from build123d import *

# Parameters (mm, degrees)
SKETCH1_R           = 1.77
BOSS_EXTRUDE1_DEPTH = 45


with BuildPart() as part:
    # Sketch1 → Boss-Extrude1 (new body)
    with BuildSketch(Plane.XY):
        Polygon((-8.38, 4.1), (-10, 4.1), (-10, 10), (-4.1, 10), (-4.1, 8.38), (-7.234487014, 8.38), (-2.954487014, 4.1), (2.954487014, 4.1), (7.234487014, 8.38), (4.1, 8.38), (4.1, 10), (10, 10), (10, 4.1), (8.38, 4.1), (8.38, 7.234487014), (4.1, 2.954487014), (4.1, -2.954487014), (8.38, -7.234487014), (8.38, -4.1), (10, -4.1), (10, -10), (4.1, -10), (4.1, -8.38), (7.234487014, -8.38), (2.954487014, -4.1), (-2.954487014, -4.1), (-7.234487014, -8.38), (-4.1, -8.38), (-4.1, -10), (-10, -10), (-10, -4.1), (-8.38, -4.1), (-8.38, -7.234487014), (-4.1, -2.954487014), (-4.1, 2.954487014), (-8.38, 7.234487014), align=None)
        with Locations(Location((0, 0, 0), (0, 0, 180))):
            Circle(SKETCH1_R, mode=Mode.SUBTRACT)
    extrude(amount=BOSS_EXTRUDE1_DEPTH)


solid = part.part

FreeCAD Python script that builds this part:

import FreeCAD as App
import Part
import Sketcher


def add_polygon(sketch, points):
    """Adds a closed chain of lines whose ends are joined by coincident constraints."""
    first, n = sketch.GeometryCount, len(points)
    for a, b in zip(points, points[1:] + points[:1]):
        sketch.addGeometry(Part.LineSegment(App.Vector(*a, 0), App.Vector(*b, 0)), False)
    for i in range(n):
        sketch.addConstraint(Sketcher.Constraint("Coincident", first + i, 2, first + (i + 1) % n, 1))

doc = App.newDocument("Part")
body = doc.addObject("PartDesign::Body", "Body")

# Sketch on XY plane
sketch1 = doc.addObject("Sketcher::SketchObject", "Sketch")
body.addObject(sketch1)
sketch1.AttachmentSupport = (doc.XY_Plane, [""])
sketch1.MapMode = "FlatFace"
add_polygon(sketch1, [(-10, 4.1), (-8.4, 4.1), (-8.4, 7.2), (-4.1, 3), (-4.1, -3), (-8.4, -7.2), (-8.4, -4.1), (-10, -4.1), (-10, -10), (-4.1, -10), (-4.1, -8.4), (-7.2, -8.4), (-3, -4.1), (3, -4.1), (7.2, -8.4), (4.1, -8.4), (4.1, -10), (10, -10), (10, -4.1), (8.4, -4.1), (8.4, -7.2), (4.1, -3), (4.1, 3), (8.4, 7.2), (8.4, 4.1), (10, 4.1), (10, 10), (4.1, 10), (4.1, 8.4), (7.2, 8.4), (3, 4.1), (-3, 4.1), (-7.2, 8.4), (-4.1, 8.4), (-4.1, 10), (-10, 10)])  # lines 0-35
sketch1.addGeometry(Part.Circle(App.Vector(0, 0, 0), App.Vector(0, 0, 1), 1.8), False)  # 36
sketch1.addConstraint([
    Sketcher.Constraint("Horizontal", 0),
    Sketcher.Constraint("Vertical", 1),
    Sketcher.Constraint("Vertical", 3),
    Sketcher.Constraint("Vertical", 5),
    Sketcher.Constraint("Horizontal", 6),
    Sketcher.Constraint("Vertical", 7),
    Sketcher.Constraint("Horizontal", 8),
    Sketcher.Constraint("Vertical", 9),
    Sketcher.Constraint("Horizontal", 10),
    Sketcher.Constraint("Horizontal", 12),
    Sketcher.Constraint("Horizontal", 14),
    Sketcher.Constraint("Vertical", 15),
    Sketcher.Constraint("Horizontal", 16),
    Sketcher.Constraint("Vertical", 17),
    Sketcher.Constraint("Horizontal", 18),
    Sketcher.Constraint("Vertical", 19),
    Sketcher.Constraint("Vertical", 21),
    Sketcher.Constraint("Vertical", 23),
    Sketcher.Constraint("Horizontal", 24),
    Sketcher.Constraint("Vertical", 25),
    Sketcher.Constraint("Horizontal", 26),
    Sketcher.Constraint("Vertical", 27),
    Sketcher.Constraint("Horizontal", 28),
    Sketcher.Constraint("Horizontal", 30),
    Sketcher.Constraint("Horizontal", 32),
    Sketcher.Constraint("Vertical", 33),
    Sketcher.Constraint("Horizontal", 34),
    Sketcher.Constraint("Vertical", 35),
    Sketcher.Constraint("Coincident", 36, 3, -1, 1),
    Sketcher.Constraint("Symmetric", 0, 2, 18, 2, -1, 1),
    Sketcher.Constraint("Symmetric", 2, 2, 20, 2, -1, 1),
    Sketcher.Constraint("Symmetric", 4, 2, 22, 2, -1, 1),
    Sketcher.Constraint("Symmetric", 6, 2, 24, 2, -1, 1),
    Sketcher.Constraint("Symmetric", 8, 2, 26, 2, -1, 1),
    Sketcher.Constraint("Symmetric", 10, 2, 28, 2, -1, 1),
    Sketcher.Constraint("Symmetric", 11, 2, 29, 2, -1, 1),
    Sketcher.Constraint("Symmetric", 13, 2, 31, 2, -1, 1),
    Sketcher.Constraint("Symmetric", 15, 2, 33, 2, -1, 1),
    Sketcher.Constraint("Symmetric", 10, 2, 13, 2, -2),
    Sketcher.Constraint("Symmetric", 8, 2, 15, 2, -2),
    Sketcher.Constraint("Symmetric", 6, 2, 17, 2, -2),
    Sketcher.Constraint("Symmetric", 4, 2, 19, 2, -2),
    Sketcher.Constraint("Perpendicular", 2, 4),
    Sketcher.Constraint("Parallel", 4, 11),
    Sketcher.Constraint("Perpendicular", 11, 13),
    Sketcher.Constraint("Parallel", 13, 20),
    Sketcher.Constraint("Perpendicular", 20, 22),
    Sketcher.Constraint("Perpendicular", 29, 31),
    Sketcher.Constraint("Horizontal", 6, 2, 11, 2),
    Sketcher.Constraint("Horizontal", 3, 2, 20, 2),
    Sketcher.Constraint("Vertical", 3, 2, 8, 2),
    Sketcher.Constraint("Vertical", 7, 2, 34, 2),
    Sketcher.Constraint("Equal", 32, 1),
    Sketcher.Constraint("Equal", 30, 3),
    Sketcher.Constraint("Equal", 34, 7),
    Sketcher.Constraint("Equal", 24, 9),
    Sketcher.Constraint("Diameter", 36, 3.54),
    Sketcher.Constraint("DistanceX", 8, 1, 8, 2, 5.9),
    Sketcher.Constraint("DistanceX", 6, 2, -1, 1, 10.0),
    Sketcher.Constraint("DistanceX", 0, 1, 0, 2, 1.62),
    Sketcher.Constraint("DistanceX", 10, 2, 10, 1, 3.134487),
])
pad1 = doc.addObject("PartDesign::Pad", "Pad")
body.addObject(pad1)
pad1.Profile = sketch1
pad1.Length = 45

doc.recompute()
